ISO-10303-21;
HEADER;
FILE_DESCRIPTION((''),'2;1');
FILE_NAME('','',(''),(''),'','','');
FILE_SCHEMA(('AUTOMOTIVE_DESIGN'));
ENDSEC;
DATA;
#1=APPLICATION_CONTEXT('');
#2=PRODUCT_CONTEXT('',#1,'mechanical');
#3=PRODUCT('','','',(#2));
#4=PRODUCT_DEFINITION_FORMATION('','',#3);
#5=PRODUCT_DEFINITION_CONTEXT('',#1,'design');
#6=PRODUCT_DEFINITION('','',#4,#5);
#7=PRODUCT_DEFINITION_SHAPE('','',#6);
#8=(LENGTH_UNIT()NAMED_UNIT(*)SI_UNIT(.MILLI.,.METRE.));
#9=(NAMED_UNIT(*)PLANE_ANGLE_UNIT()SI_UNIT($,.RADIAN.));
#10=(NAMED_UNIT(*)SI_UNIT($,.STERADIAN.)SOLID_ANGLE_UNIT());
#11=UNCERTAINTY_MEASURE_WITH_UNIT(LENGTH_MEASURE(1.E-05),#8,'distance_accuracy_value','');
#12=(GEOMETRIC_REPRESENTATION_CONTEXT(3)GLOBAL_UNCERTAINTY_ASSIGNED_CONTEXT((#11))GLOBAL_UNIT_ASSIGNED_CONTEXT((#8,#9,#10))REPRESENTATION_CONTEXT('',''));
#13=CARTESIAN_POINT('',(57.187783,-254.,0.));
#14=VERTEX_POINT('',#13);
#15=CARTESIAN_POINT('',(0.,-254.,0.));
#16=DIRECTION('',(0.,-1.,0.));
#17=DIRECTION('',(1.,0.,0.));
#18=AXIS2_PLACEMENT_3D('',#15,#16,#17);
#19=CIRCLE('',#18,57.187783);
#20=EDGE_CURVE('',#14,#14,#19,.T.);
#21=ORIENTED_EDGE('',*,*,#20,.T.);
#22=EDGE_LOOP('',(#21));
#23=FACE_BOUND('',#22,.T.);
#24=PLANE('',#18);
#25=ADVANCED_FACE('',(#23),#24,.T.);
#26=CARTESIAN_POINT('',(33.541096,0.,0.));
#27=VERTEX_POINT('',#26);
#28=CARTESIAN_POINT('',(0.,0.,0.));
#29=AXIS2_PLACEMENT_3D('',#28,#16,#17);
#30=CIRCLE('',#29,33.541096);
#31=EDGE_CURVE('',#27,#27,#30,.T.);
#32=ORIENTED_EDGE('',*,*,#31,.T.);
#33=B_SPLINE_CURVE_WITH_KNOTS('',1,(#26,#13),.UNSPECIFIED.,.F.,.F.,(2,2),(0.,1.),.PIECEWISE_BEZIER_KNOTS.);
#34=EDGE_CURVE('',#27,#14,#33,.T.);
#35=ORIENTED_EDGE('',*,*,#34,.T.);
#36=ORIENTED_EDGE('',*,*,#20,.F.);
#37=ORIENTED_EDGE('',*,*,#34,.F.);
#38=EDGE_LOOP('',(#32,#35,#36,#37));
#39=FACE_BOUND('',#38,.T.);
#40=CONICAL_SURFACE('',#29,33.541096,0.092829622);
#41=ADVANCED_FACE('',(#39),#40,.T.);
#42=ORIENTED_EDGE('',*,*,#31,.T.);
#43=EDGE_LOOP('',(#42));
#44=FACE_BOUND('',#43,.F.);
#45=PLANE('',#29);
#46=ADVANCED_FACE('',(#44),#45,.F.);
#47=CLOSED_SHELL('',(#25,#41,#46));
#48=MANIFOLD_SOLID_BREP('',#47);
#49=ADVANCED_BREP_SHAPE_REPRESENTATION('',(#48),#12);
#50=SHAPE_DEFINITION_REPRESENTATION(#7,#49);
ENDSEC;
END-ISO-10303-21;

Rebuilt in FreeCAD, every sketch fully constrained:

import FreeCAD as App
import Part
import Sketcher
from FreeCAD import Vector
Q = App.Units.Quantity

doc = App.newDocument("Part")
body = doc.addObject("PartDesign::Body", "Body")

sketch1 = body.newObject("Sketcher::SketchObject", "Sketch")
sketch1.AttachmentSupport = (doc.getObject("XZ_Plane"), [""])
sketch1.MapMode = "FlatFace"
sketch1.addGeometry(Part.Circle(Vector(0, 0, 0), Vector(0, 0, 1), 33.541096), False)
sketch1.addConstraint([
    Sketcher.Constraint("Coincident", 0, 3, -1, 1),
    Sketcher.Constraint("Diameter", 0, Q("67.082192 mm")),
])

sketch2 = body.newObject("Sketcher::SketchObject", "Sketch001")
sketch2.AttachmentSupport = (doc.getObject("XZ_Plane"), [""])
sketch2.MapMode = "FlatFace"
sketch2.AttachmentOffset = App.Placement(Vector(0, 0, 254), App.Rotation())
sketch2.addGeometry(Part.Circle(Vector(0, 0, 0), Vector(0, 0, 1), 57.187783), False)
sketch2.addConstraint([
    Sketcher.Constraint("Coincident", 0, 3, -1, 1),
    Sketcher.Constraint("Diameter", 0, Q("114.375566 mm")),
])

additiveloft = body.newObject("PartDesign::AdditiveLoft", "AdditiveLoft")
additiveloft.Profile = sketch1
additiveloft.Sections = [sketch2]

doc.recompute()
